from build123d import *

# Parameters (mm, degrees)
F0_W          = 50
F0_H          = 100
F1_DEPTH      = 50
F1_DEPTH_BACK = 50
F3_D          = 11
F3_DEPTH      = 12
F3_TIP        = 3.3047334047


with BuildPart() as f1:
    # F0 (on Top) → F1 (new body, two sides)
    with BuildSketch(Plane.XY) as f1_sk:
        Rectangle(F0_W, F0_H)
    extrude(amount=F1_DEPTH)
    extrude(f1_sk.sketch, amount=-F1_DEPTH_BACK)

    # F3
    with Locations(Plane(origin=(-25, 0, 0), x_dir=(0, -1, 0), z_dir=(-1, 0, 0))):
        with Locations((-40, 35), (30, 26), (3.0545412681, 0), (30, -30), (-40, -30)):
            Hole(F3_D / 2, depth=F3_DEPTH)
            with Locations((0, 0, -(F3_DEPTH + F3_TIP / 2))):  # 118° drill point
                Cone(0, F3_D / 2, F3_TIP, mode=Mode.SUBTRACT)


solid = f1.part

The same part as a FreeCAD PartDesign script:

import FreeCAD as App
import Part
import Sketcher

V = App.Vector
Q = App.Units.Quantity


def add_polygon(sketch, points):
    """Adds a closed chain of lines whose ends are joined by coincident constraints."""
    first, n = sketch.GeometryCount, len(points)
    for a, b in zip(points, points[1:] + points[:1]):
        sketch.addGeometry(Part.LineSegment(App.Vector(*a, 0), App.Vector(*b, 0)), False)
    for i in range(n):
        sketch.addConstraint(Sketcher.Constraint("Coincident", first + i, 2, first + (i + 1) % n, 1))

doc = App.newDocument("Part")
body = doc.addObject("PartDesign::Body", "Body")

sketch1 = doc.addObject("Sketcher::SketchObject", "Sketch")
body.addObject(sketch1)
sketch1.AttachmentSupport = (doc.XY_Plane, [""])
sketch1.MapMode = "FlatFace"
add_polygon(sketch1, [(-25, 50), (-25, -50), (25, -50), (25, 50)])
sketch1.addConstraint(Sketcher.Constraint("Vertical", 0))
sketch1.addConstraint(Sketcher.Constraint("Horizontal", 1))
sketch1.addConstraint(Sketcher.Constraint("Vertical", 2))
sketch1.addConstraint(Sketcher.Constraint("Horizontal", 3))
sketch1.addConstraint(Sketcher.Constraint("Symmetric", 0, 2, 2, 2, -1, 1))
sketch1.addConstraint(Sketcher.Constraint("DistanceX", 1, 1, 1, 2, Q("50 mm")))
sketch1.addConstraint(Sketcher.Constraint("DistanceY", 0, 2, 0, 1, Q("100 mm")))
pad1 = doc.addObject("PartDesign::Pad", "Pad")
body.addObject(pad1)
pad1.Profile = sketch1
pad1.Type = "TwoLengths"
pad1.Length = 50
pad1.Length2 = 50

sketch2 = doc.addObject("Sketcher::SketchObject", "Sketch001")
body.addObject(sketch2)
sketch2.AttachmentSupport = (doc.YZ_Plane, [""])
sketch2.MapMode = "FlatFace"
sketch2.AttachmentOffset = App.Placement(V(0, 0, -25), App.Rotation())
sketch2.addGeometry(Part.Circle(V(40, 35, 0), V(0, 0, 1), 6), False)
sketch2.addGeometry(Part.Circle(V(-30, 26, 0), V(0, 0, 1), 6), False)
sketch2.addGeometry(Part.Circle(V(-3, 0, 0), V(0, 0, 1), 6), False)
sketch2.addGeometry(Part.Circle(V(-30, -30, 0), V(0, 0, 1), 6), False)
sketch2.addGeometry(Part.Circle(V(40, -30, 0), V(0, 0, 1), 6), False)
sketch2.addConstraint(Sketcher.Constraint("Equal", 0, 1))
sketch2.addConstraint(Sketcher.Constraint("Equal", 1, 2))
sketch2.addConstraint(Sketcher.Constraint("Equal", 2, 3))
sketch2.addConstraint(Sketcher.Constraint("Equal", 3, 4))
sketch2.addConstraint(Sketcher.Constraint("PointOnObject", 2, 3, -1))
sketch2.addConstraint(Sketcher.Constraint("Horizontal", 3, 3, 4, 3))
sketch2.addConstraint(Sketcher.Constraint("Vertical", 1, 3, 3, 3))
sketch2.addConstraint(Sketcher.Constraint("Vertical", 0, 3, 4, 3))
sketch2.addConstraint(Sketcher.Constraint("Diameter", 0, Q("11 mm")))
sketch2.addConstraint(Sketcher.Constraint("DistanceX", -1, 1, 0, 3, Q("40 mm")))
sketch2.addConstraint(Sketcher.Constraint("DistanceY", -1, 1, 0, 3, Q("35 mm")))
sketch2.addConstraint(Sketcher.Constraint("DistanceX", 1, 3, -1, 1, Q("30 mm")))
sketch2.addConstraint(Sketcher.Constraint("DistanceY", -1, 1, 1, 3, Q("26 mm")))
sketch2.addConstraint(Sketcher.Constraint("DistanceY", 3, 3, -1, 1, Q("30 mm")))
sketch2.addConstraint(Sketcher.Constraint("DistanceX", 2, 3, -1, 1, Q("3.054541 mm")))
doc.recompute()
hole = doc.addObject("PartDesign::Hole", "Hole")
body.addObject(hole)
hole.Profile = sketch2
hole.ThreadType = "None"
hole.Diameter = 11
hole.DepthType = "Dimension"
hole.Depth = 12
hole.DrillPoint = "Angled"
hole.DrillPointAngle = 118
hole.Reversed = True

doc.recompute()
